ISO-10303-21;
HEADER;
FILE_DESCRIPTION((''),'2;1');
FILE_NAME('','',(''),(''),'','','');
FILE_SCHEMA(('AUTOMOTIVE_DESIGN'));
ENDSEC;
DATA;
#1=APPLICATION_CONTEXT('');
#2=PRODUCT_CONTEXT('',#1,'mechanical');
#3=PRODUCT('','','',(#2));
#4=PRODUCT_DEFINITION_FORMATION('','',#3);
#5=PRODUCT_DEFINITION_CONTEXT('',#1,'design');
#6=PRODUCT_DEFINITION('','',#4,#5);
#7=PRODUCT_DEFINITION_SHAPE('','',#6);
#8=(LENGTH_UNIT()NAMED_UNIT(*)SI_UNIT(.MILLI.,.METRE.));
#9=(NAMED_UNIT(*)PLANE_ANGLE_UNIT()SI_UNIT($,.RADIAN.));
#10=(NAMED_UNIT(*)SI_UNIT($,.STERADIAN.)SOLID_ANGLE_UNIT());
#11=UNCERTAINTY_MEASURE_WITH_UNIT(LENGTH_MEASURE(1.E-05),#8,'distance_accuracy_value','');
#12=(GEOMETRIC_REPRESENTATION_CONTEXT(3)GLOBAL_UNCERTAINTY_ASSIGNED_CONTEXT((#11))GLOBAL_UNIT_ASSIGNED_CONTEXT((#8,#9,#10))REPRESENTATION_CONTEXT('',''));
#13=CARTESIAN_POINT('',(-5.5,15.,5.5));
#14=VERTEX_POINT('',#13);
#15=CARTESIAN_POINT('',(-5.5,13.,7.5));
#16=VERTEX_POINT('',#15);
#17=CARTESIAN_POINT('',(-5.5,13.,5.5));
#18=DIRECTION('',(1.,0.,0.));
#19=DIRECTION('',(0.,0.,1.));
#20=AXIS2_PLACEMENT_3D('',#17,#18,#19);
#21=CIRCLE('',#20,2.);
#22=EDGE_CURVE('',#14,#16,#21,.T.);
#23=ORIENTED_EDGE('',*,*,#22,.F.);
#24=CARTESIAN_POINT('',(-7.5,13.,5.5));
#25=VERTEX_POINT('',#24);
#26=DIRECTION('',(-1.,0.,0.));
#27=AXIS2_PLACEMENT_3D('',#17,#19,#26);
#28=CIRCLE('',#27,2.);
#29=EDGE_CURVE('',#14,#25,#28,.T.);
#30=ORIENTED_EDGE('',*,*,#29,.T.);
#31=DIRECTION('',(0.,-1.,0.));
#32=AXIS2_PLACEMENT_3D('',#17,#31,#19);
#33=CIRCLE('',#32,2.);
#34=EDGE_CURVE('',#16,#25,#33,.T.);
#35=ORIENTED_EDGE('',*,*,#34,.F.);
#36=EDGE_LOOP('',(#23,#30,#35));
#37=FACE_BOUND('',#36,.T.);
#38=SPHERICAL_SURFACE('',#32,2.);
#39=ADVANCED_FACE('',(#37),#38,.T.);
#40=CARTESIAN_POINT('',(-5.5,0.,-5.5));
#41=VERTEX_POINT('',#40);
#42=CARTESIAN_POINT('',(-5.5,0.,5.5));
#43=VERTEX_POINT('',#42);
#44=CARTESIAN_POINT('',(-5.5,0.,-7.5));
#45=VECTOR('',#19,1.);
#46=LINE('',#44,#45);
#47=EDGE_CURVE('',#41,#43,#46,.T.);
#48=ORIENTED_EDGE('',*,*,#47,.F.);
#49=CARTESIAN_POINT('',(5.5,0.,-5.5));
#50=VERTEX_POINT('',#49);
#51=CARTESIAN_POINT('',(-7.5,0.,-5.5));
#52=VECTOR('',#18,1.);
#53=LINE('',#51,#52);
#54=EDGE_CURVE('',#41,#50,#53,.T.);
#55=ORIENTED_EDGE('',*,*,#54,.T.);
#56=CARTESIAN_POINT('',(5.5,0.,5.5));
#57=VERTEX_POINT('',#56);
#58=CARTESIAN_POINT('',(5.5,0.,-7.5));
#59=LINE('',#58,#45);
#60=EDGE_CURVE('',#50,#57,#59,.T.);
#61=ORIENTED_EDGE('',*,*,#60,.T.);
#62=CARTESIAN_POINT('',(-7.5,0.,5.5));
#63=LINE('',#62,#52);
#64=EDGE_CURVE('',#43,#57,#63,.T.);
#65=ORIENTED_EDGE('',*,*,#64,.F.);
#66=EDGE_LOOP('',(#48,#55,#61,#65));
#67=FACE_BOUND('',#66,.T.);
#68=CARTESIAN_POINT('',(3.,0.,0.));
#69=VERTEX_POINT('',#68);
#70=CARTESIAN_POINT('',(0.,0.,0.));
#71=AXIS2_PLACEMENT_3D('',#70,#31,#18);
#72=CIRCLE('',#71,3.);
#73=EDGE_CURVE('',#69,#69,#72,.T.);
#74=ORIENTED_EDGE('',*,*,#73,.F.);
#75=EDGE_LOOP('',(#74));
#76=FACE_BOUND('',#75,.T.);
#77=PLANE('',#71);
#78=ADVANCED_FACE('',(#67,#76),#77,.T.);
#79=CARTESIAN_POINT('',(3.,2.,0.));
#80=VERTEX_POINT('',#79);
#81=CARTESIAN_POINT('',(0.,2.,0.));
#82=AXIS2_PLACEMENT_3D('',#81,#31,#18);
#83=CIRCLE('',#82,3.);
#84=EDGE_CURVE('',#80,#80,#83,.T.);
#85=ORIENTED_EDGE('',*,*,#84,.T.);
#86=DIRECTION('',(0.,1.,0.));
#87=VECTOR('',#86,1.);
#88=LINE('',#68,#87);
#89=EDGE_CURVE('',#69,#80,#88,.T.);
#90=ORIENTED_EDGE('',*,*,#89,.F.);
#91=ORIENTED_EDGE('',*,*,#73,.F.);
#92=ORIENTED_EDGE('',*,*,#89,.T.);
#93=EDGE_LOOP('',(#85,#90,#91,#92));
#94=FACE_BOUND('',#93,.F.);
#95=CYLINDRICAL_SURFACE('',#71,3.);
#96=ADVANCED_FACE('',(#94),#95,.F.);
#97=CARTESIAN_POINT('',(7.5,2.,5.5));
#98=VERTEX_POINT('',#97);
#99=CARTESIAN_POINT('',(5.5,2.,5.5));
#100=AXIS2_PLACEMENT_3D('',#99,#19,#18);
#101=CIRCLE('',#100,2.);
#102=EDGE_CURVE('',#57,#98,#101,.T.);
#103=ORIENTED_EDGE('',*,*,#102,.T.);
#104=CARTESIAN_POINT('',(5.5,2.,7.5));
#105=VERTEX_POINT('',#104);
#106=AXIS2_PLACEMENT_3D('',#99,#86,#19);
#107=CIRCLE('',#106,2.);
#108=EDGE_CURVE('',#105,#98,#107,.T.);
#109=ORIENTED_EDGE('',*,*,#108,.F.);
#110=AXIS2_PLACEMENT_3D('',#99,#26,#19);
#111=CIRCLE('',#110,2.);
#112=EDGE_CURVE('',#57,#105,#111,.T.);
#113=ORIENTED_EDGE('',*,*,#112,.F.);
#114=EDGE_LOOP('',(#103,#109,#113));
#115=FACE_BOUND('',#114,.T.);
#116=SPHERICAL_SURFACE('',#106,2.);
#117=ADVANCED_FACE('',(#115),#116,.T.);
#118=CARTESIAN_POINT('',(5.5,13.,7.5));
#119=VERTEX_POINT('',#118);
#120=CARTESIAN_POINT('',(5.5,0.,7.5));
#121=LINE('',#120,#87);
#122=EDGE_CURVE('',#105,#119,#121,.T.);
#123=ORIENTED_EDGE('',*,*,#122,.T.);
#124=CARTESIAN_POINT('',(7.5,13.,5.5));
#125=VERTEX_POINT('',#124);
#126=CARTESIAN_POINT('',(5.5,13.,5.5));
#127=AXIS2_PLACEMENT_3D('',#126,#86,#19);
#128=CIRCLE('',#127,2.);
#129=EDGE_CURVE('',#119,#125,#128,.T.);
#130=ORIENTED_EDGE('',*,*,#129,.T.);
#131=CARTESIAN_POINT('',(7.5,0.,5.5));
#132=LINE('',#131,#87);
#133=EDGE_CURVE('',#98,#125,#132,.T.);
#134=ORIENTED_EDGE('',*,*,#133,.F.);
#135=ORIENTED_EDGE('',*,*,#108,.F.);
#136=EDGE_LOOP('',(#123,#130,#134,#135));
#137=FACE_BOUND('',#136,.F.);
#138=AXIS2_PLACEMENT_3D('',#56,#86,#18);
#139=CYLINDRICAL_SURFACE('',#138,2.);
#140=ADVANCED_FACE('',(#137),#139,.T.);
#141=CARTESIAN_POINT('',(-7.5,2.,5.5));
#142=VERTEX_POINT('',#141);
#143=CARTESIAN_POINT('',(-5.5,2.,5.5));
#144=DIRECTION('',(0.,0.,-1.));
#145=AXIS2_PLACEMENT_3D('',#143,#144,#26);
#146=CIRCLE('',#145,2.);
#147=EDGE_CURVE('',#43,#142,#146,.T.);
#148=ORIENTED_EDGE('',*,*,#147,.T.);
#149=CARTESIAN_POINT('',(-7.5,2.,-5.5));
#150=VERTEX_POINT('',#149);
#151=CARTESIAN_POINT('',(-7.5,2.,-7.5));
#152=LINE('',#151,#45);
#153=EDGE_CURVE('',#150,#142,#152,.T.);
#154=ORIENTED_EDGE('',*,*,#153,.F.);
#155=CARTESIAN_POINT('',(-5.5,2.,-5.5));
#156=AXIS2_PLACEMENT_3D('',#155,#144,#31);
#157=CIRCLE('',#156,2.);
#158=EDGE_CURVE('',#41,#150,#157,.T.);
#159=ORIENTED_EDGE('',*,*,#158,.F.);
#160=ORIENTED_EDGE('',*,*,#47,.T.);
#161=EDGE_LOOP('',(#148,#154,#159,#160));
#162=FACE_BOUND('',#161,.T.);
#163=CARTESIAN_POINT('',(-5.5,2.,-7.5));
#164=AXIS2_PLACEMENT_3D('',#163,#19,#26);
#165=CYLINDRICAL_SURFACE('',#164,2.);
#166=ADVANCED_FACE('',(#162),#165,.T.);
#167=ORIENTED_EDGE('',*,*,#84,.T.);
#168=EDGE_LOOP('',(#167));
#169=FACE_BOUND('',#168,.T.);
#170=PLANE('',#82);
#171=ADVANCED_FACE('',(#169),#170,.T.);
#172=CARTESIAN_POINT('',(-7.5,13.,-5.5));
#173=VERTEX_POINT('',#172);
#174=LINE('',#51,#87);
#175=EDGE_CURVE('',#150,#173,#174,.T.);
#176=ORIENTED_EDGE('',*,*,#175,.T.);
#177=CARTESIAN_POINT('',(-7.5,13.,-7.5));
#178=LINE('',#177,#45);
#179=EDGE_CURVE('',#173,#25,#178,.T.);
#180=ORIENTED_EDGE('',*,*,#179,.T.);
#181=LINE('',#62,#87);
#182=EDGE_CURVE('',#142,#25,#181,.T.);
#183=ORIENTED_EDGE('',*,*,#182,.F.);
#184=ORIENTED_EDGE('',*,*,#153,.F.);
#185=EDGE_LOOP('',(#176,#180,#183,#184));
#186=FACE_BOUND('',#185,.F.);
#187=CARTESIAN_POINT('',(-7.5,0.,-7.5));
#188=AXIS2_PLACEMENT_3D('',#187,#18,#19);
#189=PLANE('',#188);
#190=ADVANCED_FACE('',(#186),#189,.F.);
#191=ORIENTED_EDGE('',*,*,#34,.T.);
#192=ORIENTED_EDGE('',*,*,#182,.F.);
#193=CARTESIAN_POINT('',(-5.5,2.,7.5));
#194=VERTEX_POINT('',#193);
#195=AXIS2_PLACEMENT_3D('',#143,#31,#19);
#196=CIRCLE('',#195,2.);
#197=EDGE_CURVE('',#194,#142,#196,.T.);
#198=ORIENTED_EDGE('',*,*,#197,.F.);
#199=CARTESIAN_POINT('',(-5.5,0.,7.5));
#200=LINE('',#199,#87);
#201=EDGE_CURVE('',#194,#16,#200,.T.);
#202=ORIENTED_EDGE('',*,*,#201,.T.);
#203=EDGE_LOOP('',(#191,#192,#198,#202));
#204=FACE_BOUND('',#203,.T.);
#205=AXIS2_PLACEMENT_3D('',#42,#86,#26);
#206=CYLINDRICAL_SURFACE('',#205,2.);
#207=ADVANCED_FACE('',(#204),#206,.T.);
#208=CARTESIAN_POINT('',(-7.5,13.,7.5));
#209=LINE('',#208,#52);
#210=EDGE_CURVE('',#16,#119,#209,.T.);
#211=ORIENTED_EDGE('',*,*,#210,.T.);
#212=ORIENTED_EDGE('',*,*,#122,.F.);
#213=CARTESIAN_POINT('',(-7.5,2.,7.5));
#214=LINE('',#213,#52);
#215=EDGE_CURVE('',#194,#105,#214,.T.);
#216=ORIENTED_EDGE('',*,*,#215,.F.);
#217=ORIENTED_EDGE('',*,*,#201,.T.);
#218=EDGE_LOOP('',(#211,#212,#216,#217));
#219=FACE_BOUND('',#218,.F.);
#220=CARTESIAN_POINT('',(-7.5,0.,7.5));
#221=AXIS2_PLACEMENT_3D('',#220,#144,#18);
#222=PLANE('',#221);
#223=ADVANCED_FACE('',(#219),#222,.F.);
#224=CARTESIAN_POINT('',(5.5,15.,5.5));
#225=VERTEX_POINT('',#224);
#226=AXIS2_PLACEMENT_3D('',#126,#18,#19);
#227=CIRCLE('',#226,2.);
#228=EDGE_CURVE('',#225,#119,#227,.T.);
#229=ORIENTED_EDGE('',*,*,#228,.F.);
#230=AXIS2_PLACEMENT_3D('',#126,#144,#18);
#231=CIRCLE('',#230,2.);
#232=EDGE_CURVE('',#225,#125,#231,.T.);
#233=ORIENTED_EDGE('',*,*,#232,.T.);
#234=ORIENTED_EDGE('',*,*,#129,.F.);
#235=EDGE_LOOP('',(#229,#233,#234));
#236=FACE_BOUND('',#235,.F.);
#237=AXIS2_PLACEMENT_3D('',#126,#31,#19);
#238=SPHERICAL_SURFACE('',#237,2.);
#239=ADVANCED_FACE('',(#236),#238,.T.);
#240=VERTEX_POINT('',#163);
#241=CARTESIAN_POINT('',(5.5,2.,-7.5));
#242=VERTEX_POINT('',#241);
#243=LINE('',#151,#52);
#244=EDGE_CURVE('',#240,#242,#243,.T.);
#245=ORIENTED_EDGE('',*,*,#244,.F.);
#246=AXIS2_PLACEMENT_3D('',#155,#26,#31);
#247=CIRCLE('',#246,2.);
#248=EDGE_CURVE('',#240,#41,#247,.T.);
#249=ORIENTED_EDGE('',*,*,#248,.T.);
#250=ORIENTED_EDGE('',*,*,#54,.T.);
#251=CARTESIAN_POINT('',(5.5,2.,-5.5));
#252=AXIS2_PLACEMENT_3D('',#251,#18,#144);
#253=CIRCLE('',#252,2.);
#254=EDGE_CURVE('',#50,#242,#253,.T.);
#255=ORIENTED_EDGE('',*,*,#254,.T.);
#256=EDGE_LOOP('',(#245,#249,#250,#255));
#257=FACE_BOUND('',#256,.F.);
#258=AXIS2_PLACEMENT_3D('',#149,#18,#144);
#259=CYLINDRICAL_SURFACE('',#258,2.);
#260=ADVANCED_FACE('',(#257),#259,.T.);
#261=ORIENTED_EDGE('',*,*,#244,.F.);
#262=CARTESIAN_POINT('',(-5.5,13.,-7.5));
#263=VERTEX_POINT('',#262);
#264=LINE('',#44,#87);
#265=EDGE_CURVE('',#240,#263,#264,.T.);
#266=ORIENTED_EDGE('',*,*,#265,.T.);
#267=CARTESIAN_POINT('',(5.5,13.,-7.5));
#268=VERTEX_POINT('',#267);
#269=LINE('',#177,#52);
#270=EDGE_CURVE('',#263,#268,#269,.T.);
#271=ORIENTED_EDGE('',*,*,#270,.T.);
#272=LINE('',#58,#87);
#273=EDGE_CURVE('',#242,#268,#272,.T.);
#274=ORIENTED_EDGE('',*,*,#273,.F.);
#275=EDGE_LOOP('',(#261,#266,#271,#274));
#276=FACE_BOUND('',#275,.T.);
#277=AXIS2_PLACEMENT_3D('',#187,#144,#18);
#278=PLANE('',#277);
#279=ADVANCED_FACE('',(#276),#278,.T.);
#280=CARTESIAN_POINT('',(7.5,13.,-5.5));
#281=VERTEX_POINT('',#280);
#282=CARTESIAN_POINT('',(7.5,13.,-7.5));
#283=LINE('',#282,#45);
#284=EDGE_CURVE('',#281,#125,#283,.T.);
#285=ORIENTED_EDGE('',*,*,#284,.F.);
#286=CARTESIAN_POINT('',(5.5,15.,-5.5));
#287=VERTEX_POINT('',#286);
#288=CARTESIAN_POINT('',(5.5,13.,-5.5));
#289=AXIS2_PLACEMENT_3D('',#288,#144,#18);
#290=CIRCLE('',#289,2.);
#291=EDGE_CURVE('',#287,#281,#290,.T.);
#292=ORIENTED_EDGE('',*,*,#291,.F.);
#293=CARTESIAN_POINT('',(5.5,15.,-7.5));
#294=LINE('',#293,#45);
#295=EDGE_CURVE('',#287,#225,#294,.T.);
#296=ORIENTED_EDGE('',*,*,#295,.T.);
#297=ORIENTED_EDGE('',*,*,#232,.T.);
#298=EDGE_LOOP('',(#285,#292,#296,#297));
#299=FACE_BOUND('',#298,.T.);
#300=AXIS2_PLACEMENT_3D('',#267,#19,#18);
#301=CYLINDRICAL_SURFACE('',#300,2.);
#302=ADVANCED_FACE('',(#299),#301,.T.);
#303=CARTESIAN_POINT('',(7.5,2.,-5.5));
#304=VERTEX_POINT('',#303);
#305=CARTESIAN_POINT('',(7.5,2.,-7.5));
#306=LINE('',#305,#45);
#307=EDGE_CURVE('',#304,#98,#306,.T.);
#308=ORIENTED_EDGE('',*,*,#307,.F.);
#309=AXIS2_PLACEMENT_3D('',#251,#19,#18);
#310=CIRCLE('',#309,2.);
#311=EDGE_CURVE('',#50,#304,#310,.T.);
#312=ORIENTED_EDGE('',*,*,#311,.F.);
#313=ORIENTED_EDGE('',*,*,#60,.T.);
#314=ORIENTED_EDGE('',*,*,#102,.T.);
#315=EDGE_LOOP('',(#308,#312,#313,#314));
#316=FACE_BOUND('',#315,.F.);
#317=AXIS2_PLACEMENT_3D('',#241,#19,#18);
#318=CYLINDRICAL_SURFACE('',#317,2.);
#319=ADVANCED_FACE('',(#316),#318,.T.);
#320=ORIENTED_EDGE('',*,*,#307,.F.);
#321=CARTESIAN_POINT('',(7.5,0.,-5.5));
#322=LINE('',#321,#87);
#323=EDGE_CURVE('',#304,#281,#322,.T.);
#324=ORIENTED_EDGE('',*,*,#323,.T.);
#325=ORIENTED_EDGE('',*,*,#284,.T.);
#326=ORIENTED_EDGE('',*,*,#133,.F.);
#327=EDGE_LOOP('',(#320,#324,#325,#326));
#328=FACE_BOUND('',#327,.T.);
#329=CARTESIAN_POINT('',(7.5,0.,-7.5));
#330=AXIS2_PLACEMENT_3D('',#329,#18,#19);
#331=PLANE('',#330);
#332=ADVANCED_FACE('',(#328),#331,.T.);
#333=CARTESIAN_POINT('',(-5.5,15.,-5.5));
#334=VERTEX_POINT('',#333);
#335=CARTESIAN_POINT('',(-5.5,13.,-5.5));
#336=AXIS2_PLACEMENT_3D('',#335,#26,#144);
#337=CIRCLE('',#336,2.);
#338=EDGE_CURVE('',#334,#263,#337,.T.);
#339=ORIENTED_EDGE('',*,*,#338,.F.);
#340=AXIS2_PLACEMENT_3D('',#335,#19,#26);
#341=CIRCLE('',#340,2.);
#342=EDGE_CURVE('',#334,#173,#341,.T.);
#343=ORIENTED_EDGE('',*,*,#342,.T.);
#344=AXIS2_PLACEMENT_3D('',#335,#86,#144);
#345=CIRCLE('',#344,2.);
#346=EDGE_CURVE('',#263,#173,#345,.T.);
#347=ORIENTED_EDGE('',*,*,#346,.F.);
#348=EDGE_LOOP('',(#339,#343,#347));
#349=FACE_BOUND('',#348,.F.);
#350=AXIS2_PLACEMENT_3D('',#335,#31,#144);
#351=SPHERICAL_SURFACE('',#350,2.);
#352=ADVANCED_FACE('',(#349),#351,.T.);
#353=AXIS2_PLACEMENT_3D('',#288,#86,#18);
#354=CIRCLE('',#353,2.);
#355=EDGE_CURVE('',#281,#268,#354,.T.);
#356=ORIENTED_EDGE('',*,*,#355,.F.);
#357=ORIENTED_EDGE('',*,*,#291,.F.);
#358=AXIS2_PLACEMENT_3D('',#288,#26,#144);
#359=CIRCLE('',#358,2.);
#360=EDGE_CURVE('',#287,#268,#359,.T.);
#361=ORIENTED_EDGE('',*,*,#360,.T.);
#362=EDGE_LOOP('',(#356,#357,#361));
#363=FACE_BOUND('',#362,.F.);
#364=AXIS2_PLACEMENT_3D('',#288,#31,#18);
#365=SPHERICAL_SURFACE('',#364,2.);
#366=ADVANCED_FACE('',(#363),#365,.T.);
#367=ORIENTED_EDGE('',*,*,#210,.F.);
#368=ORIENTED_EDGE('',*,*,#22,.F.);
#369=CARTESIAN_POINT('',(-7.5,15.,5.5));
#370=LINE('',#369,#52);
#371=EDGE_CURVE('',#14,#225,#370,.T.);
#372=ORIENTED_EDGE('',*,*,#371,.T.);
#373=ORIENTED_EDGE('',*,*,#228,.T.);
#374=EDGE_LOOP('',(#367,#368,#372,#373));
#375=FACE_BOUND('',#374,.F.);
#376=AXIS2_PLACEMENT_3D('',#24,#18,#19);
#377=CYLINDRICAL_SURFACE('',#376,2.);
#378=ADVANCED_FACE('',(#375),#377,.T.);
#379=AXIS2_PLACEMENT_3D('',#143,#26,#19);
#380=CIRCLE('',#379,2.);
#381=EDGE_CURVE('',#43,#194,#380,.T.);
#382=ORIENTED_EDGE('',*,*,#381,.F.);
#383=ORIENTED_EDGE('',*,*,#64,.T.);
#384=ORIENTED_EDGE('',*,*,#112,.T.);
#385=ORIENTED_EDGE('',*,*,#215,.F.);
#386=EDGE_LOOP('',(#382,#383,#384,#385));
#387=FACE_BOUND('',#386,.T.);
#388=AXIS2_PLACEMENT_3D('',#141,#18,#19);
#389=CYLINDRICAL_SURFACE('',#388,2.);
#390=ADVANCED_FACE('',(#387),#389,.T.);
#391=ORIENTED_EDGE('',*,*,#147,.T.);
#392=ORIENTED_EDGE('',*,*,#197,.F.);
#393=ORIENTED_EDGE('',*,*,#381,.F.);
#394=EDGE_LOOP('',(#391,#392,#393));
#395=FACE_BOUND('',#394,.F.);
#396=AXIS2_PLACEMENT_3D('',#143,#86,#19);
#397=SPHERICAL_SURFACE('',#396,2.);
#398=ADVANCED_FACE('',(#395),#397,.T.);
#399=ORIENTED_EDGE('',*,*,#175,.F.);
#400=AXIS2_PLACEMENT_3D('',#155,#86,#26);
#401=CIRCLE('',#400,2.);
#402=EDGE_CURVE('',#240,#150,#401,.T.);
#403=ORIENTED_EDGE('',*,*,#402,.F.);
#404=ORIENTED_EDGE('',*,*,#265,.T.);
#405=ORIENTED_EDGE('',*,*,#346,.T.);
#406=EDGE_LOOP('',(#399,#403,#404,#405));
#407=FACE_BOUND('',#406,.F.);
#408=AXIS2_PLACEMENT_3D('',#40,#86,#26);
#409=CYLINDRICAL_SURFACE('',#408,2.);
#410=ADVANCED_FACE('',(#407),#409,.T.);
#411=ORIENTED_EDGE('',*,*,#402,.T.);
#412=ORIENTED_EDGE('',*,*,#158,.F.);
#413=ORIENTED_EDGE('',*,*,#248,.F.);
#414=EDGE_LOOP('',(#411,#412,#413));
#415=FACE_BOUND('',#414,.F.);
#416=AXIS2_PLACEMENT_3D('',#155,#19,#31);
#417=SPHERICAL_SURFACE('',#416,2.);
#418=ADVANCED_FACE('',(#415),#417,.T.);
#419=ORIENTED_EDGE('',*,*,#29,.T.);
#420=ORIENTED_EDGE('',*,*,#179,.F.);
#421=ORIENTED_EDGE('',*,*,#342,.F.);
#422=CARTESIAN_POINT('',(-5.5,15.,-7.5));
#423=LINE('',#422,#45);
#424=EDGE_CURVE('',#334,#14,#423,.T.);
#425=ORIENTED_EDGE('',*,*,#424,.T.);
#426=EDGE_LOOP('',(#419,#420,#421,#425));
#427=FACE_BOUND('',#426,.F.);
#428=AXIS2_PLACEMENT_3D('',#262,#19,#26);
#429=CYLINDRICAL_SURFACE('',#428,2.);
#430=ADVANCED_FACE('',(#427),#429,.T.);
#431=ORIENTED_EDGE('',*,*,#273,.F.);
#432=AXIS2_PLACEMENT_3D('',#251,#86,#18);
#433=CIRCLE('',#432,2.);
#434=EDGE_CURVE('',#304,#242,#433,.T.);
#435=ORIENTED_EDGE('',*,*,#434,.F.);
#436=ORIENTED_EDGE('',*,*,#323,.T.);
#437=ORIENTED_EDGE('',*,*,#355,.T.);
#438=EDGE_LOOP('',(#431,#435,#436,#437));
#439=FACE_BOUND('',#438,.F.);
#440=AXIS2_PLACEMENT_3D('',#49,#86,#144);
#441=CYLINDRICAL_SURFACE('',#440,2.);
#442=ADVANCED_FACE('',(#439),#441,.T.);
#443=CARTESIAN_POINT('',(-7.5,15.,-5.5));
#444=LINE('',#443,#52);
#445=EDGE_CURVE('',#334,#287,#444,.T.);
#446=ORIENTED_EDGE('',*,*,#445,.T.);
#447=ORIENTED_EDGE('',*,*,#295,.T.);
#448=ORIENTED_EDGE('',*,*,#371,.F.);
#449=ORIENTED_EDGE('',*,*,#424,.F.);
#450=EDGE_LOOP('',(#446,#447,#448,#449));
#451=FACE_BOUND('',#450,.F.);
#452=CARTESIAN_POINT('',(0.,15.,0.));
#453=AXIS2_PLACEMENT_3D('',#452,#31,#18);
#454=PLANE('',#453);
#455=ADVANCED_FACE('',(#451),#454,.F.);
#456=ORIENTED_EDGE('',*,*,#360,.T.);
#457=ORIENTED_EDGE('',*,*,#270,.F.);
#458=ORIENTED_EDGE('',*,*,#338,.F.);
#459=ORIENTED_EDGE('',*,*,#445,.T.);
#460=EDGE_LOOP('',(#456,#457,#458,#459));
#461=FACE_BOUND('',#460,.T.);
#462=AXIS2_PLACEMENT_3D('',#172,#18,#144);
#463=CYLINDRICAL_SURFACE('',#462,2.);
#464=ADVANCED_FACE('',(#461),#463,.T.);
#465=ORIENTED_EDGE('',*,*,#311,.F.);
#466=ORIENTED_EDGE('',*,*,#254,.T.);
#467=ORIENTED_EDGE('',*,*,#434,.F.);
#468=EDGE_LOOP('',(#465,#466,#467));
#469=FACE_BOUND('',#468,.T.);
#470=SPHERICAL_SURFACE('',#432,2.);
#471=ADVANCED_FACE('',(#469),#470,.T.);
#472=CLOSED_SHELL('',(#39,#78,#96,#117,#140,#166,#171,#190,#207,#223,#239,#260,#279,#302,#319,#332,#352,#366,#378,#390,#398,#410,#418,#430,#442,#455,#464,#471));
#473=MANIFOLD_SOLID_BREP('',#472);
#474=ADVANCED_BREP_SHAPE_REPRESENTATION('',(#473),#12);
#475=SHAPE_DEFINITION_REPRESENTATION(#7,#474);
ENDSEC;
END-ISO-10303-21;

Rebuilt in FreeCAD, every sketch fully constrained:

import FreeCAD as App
import Part
import Sketcher
Q = App.Units.Quantity


def add_polygon(sketch, points):
    """Adds a closed chain of lines whose ends are joined by coincident constraints."""
    first, n = sketch.GeometryCount, len(points)
    for a, b in zip(points, points[1:] + points[:1]):
        sketch.addGeometry(Part.LineSegment(App.Vector(*a, 0), App.Vector(*b, 0)), False)
    for i in range(n):
        sketch.addConstraint(Sketcher.Constraint("Coincident", first + i, 2, first + (i + 1) % n, 1))

doc = App.newDocument("Part")
params = doc.addObject("Spreadsheet::Sheet", "Params")
for row, (alias, value) in enumerate([
    ("sketch1_width", "15 mm"),
    ("pad1_length", "15 mm"),
    ("fillet_radius", "2 mm"),
    ("sketch2_diameter", "6 mm"),
    ("pocket1_length", "2 mm"),
], start=1):
    params.set(f"A{row}", alias)
    params.set(f"B{row}", "=" + value)
    params.setAlias(f"B{row}", alias)

body = doc.addObject("PartDesign::Body", "Body")

# Sketch on XZ plane
sketch1 = body.newObject("Sketcher::SketchObject", "Sketch")
sketch1.AttachmentSupport = (doc.getObject("XZ_Plane"), [""])
sketch1.MapMode = "FlatFace"
add_polygon(sketch1, [(-8, 8), (-8, -8), (8, -8), (8, 8)])  # lines 0-3
sketch1.addConstraint([
    Sketcher.Constraint("Vertical", 0),
    Sketcher.Constraint("Horizontal", 1),
    Sketcher.Constraint("Vertical", 2),
    Sketcher.Constraint("Horizontal", 3),
    Sketcher.Constraint("Symmetric", 0, 2, 2, 2, -1, 1),
    Sketcher.Constraint("Equal", 3, 0),
    Sketcher.Constraint("DistanceX", 1, 1, 1, 2, Q("15 mm")),
])
sketch1.setExpression("Constraints[10]", "Params.sketch1_width")
pad1 = body.newObject("PartDesign::Pad", "Pad")
pad1.Profile = sketch1
pad1.setExpression("Length", "Params.pad1_length")
pad1.Reversed = True
doc.recompute()

fillet = body.newObject("PartDesign::Fillet", "Fillet")
fillet.Base = (pad1, ["Edge1"])
fillet.UseAllEdges = True
fillet.setExpression("Radius", "Params.fillet_radius")

# Sketch on XZ plane
sketch2 = body.newObject("Sketcher::SketchObject", "Sketch001")
sketch2.AttachmentSupport = (doc.getObject("XZ_Plane"), [""])
sketch2.MapMode = "FlatFace"
sketch2.addGeometry(Part.Circle(App.Vector(0, 0, 0), App.Vector(0, 0, 1), 3), False)
sketch2.addConstraint([
    Sketcher.Constraint("Coincident", 0, 3, -1, 1),
    Sketcher.Constraint("Diameter", 0, Q("6 mm")),
])
sketch2.setExpression("Constraints[1]", "Params.sketch2_diameter")
pocket1 = body.newObject("PartDesign::Pocket", "Pocket")
pocket1.Profile = sketch2
pocket1.setExpression("Length", "Params.pocket1_length")

doc.recompute()
